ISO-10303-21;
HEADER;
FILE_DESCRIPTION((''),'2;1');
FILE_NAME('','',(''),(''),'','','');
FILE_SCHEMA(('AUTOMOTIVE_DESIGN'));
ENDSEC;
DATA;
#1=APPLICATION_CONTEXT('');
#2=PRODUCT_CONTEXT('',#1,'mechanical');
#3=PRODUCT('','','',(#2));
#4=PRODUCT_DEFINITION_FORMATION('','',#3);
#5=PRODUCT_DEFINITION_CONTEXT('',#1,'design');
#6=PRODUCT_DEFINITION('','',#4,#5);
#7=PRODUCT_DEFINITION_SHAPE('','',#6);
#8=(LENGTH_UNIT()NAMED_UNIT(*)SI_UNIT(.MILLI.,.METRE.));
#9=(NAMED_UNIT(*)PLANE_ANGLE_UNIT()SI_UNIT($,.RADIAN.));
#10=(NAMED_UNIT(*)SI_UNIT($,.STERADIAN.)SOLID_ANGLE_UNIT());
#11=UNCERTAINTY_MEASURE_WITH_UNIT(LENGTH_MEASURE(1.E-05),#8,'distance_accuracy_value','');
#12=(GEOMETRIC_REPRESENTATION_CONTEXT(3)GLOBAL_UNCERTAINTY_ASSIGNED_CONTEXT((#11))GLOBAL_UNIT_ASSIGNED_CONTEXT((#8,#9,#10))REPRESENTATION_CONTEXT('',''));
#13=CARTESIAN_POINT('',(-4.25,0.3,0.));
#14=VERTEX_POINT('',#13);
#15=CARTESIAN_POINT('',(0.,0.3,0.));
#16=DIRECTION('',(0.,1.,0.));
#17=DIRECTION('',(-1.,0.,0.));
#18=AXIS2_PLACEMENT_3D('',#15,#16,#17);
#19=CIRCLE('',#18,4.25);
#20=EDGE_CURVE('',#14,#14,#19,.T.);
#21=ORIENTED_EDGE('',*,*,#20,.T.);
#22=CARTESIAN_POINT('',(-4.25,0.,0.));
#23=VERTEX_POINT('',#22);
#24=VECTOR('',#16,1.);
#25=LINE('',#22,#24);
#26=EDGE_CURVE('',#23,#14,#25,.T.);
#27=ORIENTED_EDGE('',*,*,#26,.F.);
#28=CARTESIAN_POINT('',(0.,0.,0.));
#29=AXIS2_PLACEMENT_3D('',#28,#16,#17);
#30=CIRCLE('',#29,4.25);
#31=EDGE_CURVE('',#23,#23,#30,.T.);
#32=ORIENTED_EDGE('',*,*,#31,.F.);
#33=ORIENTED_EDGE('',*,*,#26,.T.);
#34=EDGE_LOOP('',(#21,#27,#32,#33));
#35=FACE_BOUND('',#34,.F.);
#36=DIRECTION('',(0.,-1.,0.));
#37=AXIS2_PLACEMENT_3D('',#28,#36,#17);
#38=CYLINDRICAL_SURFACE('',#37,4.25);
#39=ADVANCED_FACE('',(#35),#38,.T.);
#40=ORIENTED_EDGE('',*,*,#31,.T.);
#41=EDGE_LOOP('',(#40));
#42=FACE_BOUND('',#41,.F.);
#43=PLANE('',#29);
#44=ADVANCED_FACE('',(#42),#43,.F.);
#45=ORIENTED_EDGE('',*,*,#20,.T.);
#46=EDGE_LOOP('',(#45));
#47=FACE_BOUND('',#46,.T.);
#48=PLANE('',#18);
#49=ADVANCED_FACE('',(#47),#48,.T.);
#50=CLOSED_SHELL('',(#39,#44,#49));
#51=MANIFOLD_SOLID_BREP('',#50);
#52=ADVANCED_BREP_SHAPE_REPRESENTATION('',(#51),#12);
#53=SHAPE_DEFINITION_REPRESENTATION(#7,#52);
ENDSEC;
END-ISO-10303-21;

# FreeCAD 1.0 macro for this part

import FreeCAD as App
import Part
import Sketcher
from FreeCAD import Vector

doc = App.newDocument("Part")
params = doc.addObject("Spreadsheet::Sheet", "Params")
for row, (alias, value) in enumerate([
    ("sketch1_diameter", "8.5 mm"),
    ("pad1_length", "0.3 mm"),
], start=1):
    params.set(f"A{row}", alias)
    params.set(f"B{row}", "=" + value)
    params.setAlias(f"B{row}", alias)

body = doc.addObject("PartDesign::Body", "Body")

sketch1 = body.newObject("Sketcher::SketchObject", "Sketch")
sketch1.AttachmentSupport = (doc.getObject("XZ_Plane"), [""])
sketch1.MapMode = "FlatFace"
sketch1.addGeometry(Part.Circle(Vector(0, 0, 0), Vector(0, 0, 1), 4.25), False)
sketch1.addConstraint(Sketcher.Constraint("Coincident", 0, 3, -1, 1))
sketch1.addConstraint(Sketcher.Constraint("Diameter", 0, 8.5))
sketch1.setExpression("Constraints[1]", "Params.sketch1_diameter")
pad1 = body.newObject("PartDesign::Pad", "Pad")
pad1.Profile = sketch1
pad1.setExpression("Length", "Params.pad1_length")
pad1.Reversed = True

doc.recompute()
